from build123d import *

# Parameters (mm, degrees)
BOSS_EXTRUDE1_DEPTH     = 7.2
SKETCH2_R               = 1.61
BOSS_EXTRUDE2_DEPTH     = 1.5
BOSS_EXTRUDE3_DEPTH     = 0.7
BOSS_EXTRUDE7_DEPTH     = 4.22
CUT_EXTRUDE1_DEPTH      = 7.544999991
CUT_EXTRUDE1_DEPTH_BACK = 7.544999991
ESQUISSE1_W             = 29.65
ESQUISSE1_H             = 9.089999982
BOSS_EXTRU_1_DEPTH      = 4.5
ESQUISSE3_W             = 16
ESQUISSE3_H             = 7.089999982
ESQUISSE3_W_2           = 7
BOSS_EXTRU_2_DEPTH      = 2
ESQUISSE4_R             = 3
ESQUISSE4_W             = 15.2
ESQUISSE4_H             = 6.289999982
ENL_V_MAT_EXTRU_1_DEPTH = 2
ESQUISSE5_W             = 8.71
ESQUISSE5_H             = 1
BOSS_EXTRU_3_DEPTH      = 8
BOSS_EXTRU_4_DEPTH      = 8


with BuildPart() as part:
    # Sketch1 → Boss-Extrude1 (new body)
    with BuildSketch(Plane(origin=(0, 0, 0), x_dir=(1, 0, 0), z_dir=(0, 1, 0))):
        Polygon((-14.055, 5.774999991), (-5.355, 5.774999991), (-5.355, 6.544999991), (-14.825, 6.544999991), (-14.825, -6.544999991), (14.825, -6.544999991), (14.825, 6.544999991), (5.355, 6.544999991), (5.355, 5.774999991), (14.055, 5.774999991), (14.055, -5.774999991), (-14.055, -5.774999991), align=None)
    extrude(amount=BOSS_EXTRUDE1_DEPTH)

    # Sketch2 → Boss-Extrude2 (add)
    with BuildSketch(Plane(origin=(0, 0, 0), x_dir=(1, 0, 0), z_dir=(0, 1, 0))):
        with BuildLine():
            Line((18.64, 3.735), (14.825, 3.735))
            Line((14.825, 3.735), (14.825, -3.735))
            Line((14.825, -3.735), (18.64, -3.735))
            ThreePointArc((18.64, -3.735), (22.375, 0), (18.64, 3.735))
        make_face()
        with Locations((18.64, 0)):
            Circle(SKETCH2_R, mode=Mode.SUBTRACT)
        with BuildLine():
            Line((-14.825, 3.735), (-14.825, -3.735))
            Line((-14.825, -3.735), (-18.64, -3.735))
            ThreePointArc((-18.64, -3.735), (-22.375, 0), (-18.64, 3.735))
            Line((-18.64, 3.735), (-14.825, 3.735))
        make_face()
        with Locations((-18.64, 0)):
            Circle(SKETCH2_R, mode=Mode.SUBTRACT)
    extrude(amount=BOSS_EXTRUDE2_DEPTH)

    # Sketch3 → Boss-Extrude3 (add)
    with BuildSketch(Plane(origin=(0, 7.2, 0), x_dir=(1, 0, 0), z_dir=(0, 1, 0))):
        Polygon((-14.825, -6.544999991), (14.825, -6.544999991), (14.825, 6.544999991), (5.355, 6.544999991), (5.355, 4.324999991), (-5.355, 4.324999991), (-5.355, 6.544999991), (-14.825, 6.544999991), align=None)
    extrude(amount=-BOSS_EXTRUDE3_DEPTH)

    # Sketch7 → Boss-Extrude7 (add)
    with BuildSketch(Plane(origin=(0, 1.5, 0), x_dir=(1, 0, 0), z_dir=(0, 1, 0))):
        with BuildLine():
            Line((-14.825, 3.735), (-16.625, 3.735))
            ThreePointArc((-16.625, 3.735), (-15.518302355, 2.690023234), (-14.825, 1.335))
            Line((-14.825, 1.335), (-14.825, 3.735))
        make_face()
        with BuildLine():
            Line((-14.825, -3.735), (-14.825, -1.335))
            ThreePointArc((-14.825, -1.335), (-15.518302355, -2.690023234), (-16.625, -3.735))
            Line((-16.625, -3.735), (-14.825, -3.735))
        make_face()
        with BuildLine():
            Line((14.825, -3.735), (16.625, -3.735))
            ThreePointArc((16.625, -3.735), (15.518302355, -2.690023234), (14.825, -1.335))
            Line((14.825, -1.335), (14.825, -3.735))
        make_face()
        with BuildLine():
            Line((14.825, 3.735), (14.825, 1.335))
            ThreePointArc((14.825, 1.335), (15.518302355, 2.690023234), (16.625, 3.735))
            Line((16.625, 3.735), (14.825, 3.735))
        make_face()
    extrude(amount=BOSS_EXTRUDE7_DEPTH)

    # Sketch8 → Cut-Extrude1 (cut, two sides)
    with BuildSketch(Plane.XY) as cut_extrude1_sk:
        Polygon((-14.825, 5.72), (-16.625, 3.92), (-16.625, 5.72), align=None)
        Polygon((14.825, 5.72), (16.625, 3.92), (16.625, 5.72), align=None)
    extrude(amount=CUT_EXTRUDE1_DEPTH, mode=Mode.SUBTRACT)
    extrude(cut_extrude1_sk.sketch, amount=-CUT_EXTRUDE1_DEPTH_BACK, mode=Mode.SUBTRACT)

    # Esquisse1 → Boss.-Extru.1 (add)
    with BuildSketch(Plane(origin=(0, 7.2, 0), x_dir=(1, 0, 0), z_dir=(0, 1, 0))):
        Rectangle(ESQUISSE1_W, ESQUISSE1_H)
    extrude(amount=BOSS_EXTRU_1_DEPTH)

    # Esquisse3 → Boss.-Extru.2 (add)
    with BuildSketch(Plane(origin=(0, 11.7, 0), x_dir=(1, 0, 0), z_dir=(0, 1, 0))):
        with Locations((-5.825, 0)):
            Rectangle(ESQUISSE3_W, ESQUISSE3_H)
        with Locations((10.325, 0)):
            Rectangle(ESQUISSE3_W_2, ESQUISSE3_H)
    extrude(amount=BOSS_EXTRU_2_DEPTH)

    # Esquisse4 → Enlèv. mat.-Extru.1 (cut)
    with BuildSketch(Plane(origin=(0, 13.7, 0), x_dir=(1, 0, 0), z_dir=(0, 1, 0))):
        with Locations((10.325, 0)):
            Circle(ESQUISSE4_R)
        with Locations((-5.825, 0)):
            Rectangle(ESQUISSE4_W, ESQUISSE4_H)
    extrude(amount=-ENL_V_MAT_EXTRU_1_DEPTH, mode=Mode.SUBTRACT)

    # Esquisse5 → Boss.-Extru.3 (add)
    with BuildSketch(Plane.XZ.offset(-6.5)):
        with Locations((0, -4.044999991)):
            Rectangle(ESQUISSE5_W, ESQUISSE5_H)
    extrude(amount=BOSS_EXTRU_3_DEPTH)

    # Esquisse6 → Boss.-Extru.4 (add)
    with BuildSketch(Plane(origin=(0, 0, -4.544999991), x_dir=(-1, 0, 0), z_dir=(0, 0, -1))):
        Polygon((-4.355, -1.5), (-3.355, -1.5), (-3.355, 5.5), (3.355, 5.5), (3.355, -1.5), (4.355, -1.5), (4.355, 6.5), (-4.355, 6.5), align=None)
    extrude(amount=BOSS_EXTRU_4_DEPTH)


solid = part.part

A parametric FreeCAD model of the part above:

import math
import FreeCAD as App
import Part
import Sketcher
from FreeCAD import Vector

doc = App.newDocument("Part")
params = doc.addObject("Spreadsheet::Sheet", "Params")
for row, (alias, value) in enumerate([
    ("sketch1_width", "8.7 mm"),
    ("sketch1_width2", "9.47 mm"),
    ("sketch1_width3", "29.65 mm"),
    ("sketch1_height", "0.77 mm"),
    ("sketch1_height2", "13.09 mm"),
    ("pad1_length", "7.2 mm"),
    ("sketch2_diameter", "3.22 mm"),
    ("pad2_length", "1.5 mm"),
    ("sketch3_width", "29.65 mm"),
    ("sketch3_width2", "9.47 mm"),
    ("sketch3_height", "13.09 mm"),
    ("sketch3_height2", "2.22 mm"),
    ("pad3_length", "0.7 mm"),
    ("sketch4_width", "1.8 mm"),
    ("sketch4_height", "2.4 mm"),
    ("pad4_length", "4.22 mm"),
    ("sketch5_width", "1.8 mm"),
    ("sketch6_width", "29.65 mm"),
    ("sketch6_height", "9.09 mm"),
    ("pad5_length", "4.5 mm"),
    ("sketch7_width", "16 mm"),
    ("sketch7_width2", "7 mm"),
    ("sketch7_height", "7.09 mm"),
    ("pad6_length", "2 mm"),
    ("sketch8_diameter", "6 mm"),
    ("sketch8_width", "15.2 mm"),
    ("sketch8_height", "6.29 mm"),
    ("pocket2_length", "2 mm"),
    ("sketch9_height", "1 mm"),
    ("sketch9_width", "8.71 mm"),
    ("pad7_length", "8 mm"),
    ("sketch10_width", "1 mm"),
    ("sketch10_height", "7 mm"),
    ("sketch10_height2", "8 mm"),
    ("sketch10_width2", "6.71 mm"),
    ("pad8_length", "8 mm"),
], start=1):
    params.set(f"A{row}", alias)
    params.set(f"B{row}", "=" + value)
    params.setAlias(f"B{row}", alias)

body = doc.addObject("PartDesign::Body", "Body")

# Sketch on XZ plane
sketch1 = doc.addObject("Sketcher::SketchObject", "Sketch")
body.addObject(sketch1)
sketch1.AttachmentSupport = (doc.XZ_Plane, [""])
sketch1.MapMode = "FlatFace"
sketch1.addGeometry([
    Part.LineSegment(Vector(-14.1, -5.8, 0), Vector(-5.4, -5.8, 0)),  # 0
    Part.LineSegment(Vector(-5.4, -5.8, 0), Vector(-5.4, -6.5, 0)),  # 1
    Part.LineSegment(Vector(-5.4, -6.5, 0), Vector(-14.8, -6.5, 0)),  # 2
    Part.LineSegment(Vector(-14.8, -6.5, 0), Vector(-14.8, 6.5, 0)),  # 3
    Part.LineSegment(Vector(-14.8, 6.5, 0), Vector(14.8, 6.5, 0)),  # 4
    Part.LineSegment(Vector(14.8, 6.5, 0), Vector(14.8, -6.5, 0)),  # 5
    Part.LineSegment(Vector(14.8, -6.5, 0), Vector(5.4, -6.5, 0)),  # 6
    Part.LineSegment(Vector(5.4, -6.5, 0), Vector(5.4, -5.8, 0)),  # 7
    Part.LineSegment(Vector(5.4, -5.8, 0), Vector(14.1, -5.8, 0)),  # 8
    Part.LineSegment(Vector(14.1, -5.8, 0), Vector(14.1, 5.8, 0)),  # 9
    Part.LineSegment(Vector(14.1, 5.8, 0), Vector(-14.1, 5.8, 0)),  # 10
    Part.LineSegment(Vector(-14.1, 5.8, 0), Vector(-14.1, -5.8, 0)),  # 11
], False)
sketch1.addConstraint([
    Sketcher.Constraint("Coincident", 0, 2, 1, 1),
    Sketcher.Constraint("Coincident", 1, 2, 2, 1),
    Sketcher.Constraint("Coincident", 2, 2, 3, 1),
    Sketcher.Constraint("Coincident", 3, 2, 4, 1),
    Sketcher.Constraint("Coincident", 4, 2, 5, 1),
    Sketcher.Constraint("Coincident", 5, 2, 6, 1),
    Sketcher.Constraint("Coincident", 6, 2, 7, 1),
    Sketcher.Constraint("Coincident", 7, 2, 8, 1),
    Sketcher.Constraint("Coincident", 8, 2, 9, 1),
    Sketcher.Constraint("Coincident", 9, 2, 10, 1),
    Sketcher.Constraint("Coincident", 10, 2, 11, 1),
    Sketcher.Constraint("Coincident", 11, 2, 0, 1),
    Sketcher.Constraint("Horizontal", 0),
    Sketcher.Constraint("Vertical", 1),
    Sketcher.Constraint("Horizontal", 2),
    Sketcher.Constraint("Vertical", 3),
    Sketcher.Constraint("Horizontal", 4),
    Sketcher.Constraint("Vertical", 5),
    Sketcher.Constraint("Horizontal", 6),
    Sketcher.Constraint("Vertical", 7),
    Sketcher.Constraint("Horizontal", 8),
    Sketcher.Constraint("Vertical", 9),
    Sketcher.Constraint("Horizontal", 10),
    Sketcher.Constraint("Vertical", 11),
    Sketcher.Constraint("Symmetric", 2, 2, 4, 2, -1, 1),
    Sketcher.Constraint("Symmetric", 8, 2, 10, 2, -1, 1),
    Sketcher.Constraint("Symmetric", 1, 2, 6, 2, -2),
    Sketcher.Constraint("Horizontal", 0, 2, 7, 2),
    Sketcher.Constraint("DistanceX", 0, 1, 0, 2, 8.7),
    Sketcher.Constraint("DistanceX", 2, 2, 2, 1, 9.47),
    Sketcher.Constraint("DistanceX", 4, 1, 4, 2, 29.65),
    Sketcher.Constraint("DistanceY", 1, 2, 1, 1, 0.77),
    Sketcher.Constraint("DistanceY", 3, 1, 3, 2, 13.09),
])
sketch1.setExpression("Constraints[28]", "Params.sketch1_width")
sketch1.setExpression("Constraints[29]", "Params.sketch1_width2")
sketch1.setExpression("Constraints[30]", "Params.sketch1_width3")
sketch1.setExpression("Constraints[31]", "Params.sketch1_height")
sketch1.setExpression("Constraints[32]", "Params.sketch1_height2")
pad1 = doc.addObject("PartDesign::Pad", "Pad")
body.addObject(pad1)
pad1.Profile = sketch1
pad1.setExpression("Length", "Params.pad1_length")
pad1.Reversed = True

# Sketch on XZ plane
sketch2 = doc.addObject("Sketcher::SketchObject", "Sketch001")
body.addObject(sketch2)
sketch2.AttachmentSupport = (doc.XZ_Plane, [""])
sketch2.MapMode = "FlatFace"
sketch2.addGeometry([
    Part.LineSegment(Vector(18.6, -3.7, 0), Vector(14.8, -3.7, 0)),  # 0
    Part.LineSegment(Vector(14.8, -3.7, 0), Vector(14.8, 3.7, 0)),  # 1
    Part.LineSegment(Vector(14.8, 3.7, 0), Vector(18.6, 3.7, 0)),  # 2
    Part.ArcOfCircle(Part.Circle(Vector(18.6, 0, 0), Vector(0, 0, 1), 3.7), math.radians(-90), math.radians(90)),  # 3
    Part.Circle(Vector(18.6, 0, 0), Vector(0, 0, 1), 1.6),  # 4
    Part.LineSegment(Vector(-14.8, 3.7, 0), Vector(-14.8, -3.7, 0)),  # 5
    Part.LineSegment(Vector(-14.8, -3.7, 0), Vector(-18.6, -3.7, 0)),  # 6
    Part.ArcOfCircle(Part.Circle(Vector(-18.6, 0, 0), Vector(0, 0, 1), 3.7), math.radians(90), math.radians(270)),  # 7
    Part.LineSegment(Vector(-18.6, 3.7, 0), Vector(-14.8, 3.7, 0)),  # 8
    Part.Circle(Vector(-18.6, 0, 0), Vector(0, 0, 1), 1.6),  # 9
], False)
sketch2.addConstraint([
    Sketcher.Constraint("Coincident", 0, 2, 1, 1),
    Sketcher.Constraint("Coincident", 1, 2, 2, 1),
    Sketcher.Constraint("Tangent", 2, 2, 3, 2),
    Sketcher.Constraint("Tangent", 3, 1, 0, 1),
    Sketcher.Constraint("Coincident", 5, 2, 6, 1),
    Sketcher.Constraint("Tangent", 6, 2, 7, 2),
    Sketcher.Constraint("Tangent", 7, 1, 8, 1),
    Sketcher.Constraint("Coincident", 8, 2, 5, 1),
    Sketcher.Constraint("Horizontal", 0),
    Sketcher.Constraint("Vertical", 1),
    Sketcher.Constraint("Horizontal", 2),
    Sketcher.Constraint("Vertical", 5),
    Sketcher.Constraint("Horizontal", 6),
    Sketcher.Constraint("Horizontal", 8),
    Sketcher.Constraint("Coincident", 4, 3, 3, 3),
    Sketcher.Constraint("Coincident", 9, 3, 7, 3),
    Sketcher.Constraint("Equal", 3, 7),
    Sketcher.Constraint("Equal", 4, 9),
    Sketcher.Constraint("Symmetric", 3, 3, 7, 3, -1, 1),
    Sketcher.Constraint("Symmetric", 0, 2, 5, 2, -2),
    Sketcher.Constraint("Diameter", 4, 3.22),
    Sketcher.Constraint("Radius", 3, 3.735),
    Sketcher.Constraint("DistanceX", 0, 2, 0, 1, 3.815),
    Sketcher.Constraint("DistanceX", -1, 1, 3, 3, 18.64),
])
sketch2.setExpression("Constraints[20]", "Params.sketch2_diameter")
pad2 = doc.addObject("PartDesign::Pad", "Pad001")
body.addObject(pad2)
pad2.Profile = sketch2
pad2.setExpression("Length", "Params.pad2_length")
pad2.Reversed = True

# Sketch on XZ plane
sketch3 = doc.addObject("Sketcher::SketchObject", "Sketch002")
body.addObject(sketch3)
sketch3.AttachmentSupport = (doc.XZ_Plane, [""])
sketch3.MapMode = "FlatFace"
sketch3.AttachmentOffset = App.Placement(Vector(0, 0, -7.2), App.Rotation())
sketch3.addGeometry([
    Part.LineSegment(Vector(-14.8, 6.5, 0), Vector(14.8, 6.5, 0)),  # 0
    Part.LineSegment(Vector(14.8, 6.5, 0), Vector(14.8, -6.5, 0)),  # 1
    Part.LineSegment(Vector(14.8, -6.5, 0), Vector(5.4, -6.5, 0)),  # 2
    Part.LineSegment(Vector(5.4, -6.5, 0), Vector(5.4, -4.3, 0)),  # 3
    Part.LineSegment(Vector(5.4, -4.3, 0), Vector(-5.4, -4.3, 0)),  # 4
    Part.LineSegment(Vector(-5.4, -4.3, 0), Vector(-5.4, -6.5, 0)),  # 5
    Part.LineSegment(Vector(-5.4, -6.5, 0), Vector(-14.8, -6.5, 0)),  # 6
    Part.LineSegment(Vector(-14.8, -6.5, 0), Vector(-14.8, 6.5, 0)),  # 7
], False)
sketch3.addConstraint([
    Sketcher.Constraint("Coincident", 0, 2, 1, 1),
    Sketcher.Constraint("Coincident", 1, 2, 2, 1),
    Sketcher.Constraint("Coincident", 2, 2, 3, 1),
    Sketcher.Constraint("Coincident", 3, 2, 4, 1),
    Sketcher.Constraint("Coincident", 4, 2, 5, 1),
    Sketcher.Constraint("Coincident", 5, 2, 6, 1),
    Sketcher.Constraint("Coincident", 6, 2, 7, 1),
    Sketcher.Constraint("Coincident", 7, 2, 0, 1),
    Sketcher.Constraint("Horizontal", 0),
    Sketcher.Constraint("Vertical", 1),
    Sketcher.Constraint("Horizontal", 2),
    Sketcher.Constraint("Vertical", 3),
    Sketcher.Constraint("Horizontal", 4),
    Sketcher.Constraint("Vertical", 5),
    Sketcher.Constraint("Horizontal", 6),
    Sketcher.Constraint("Vertical", 7),
    Sketcher.Constraint("Symmetric", 0, 2, 6, 2, -1, 1),
    Sketcher.Constraint("Symmetric", 2, 2, 5, 2, -2),
    Sketcher.Constraint("DistanceX", 0, 1, 0, 2, 29.65),
    Sketcher.Constraint("DistanceX", 2, 2, 2, 1, 9.47),
    Sketcher.Constraint("DistanceY", 1, 2, 1, 1, 13.09),
    Sketcher.Constraint("DistanceY", 3, 1, 3, 2, 2.22),
])
sketch3.setExpression("Constraints[18]", "Params.sketch3_width")
sketch3.setExpression("Constraints[19]", "Params.sketch3_width2")
sketch3.setExpression("Constraints[20]", "Params.sketch3_height")
sketch3.setExpression("Constraints[21]", "Params.sketch3_height2")
pad3 = doc.addObject("PartDesign::Pad", "Pad002")
body.addObject(pad3)
pad3.Profile = sketch3
pad3.setExpression("Length", "Params.pad3_length")

# Sketch on XZ plane
sketch4 = doc.addObject("Sketcher::SketchObject", "Sketch003")
body.addObject(sketch4)
sketch4.AttachmentSupport = (doc.XZ_Plane, [""])
sketch4.MapMode = "FlatFace"
sketch4.AttachmentOffset = App.Placement(Vector(0, 0, -1.5), App.Rotation())
sketch4.addGeometry([
    Part.LineSegment(Vector(-14.8, -3.7, 0), Vector(-16.6, -3.7, 0)),  # 0
    Part.ArcOfCircle(Part.Circle(Vector(-19.1, 0, 0), Vector(0, 0, 1), 4.5), math.radians(-56), math.radians(-17)),  # 1
    Part.LineSegment(Vector(-14.8, -1.3, 0), Vector(-14.8, -3.7, 0)),  # 2
    Part.LineSegment(Vector(-14.8, 3.7, 0), Vector(-14.8, 1.3, 0)),  # 3
    Part.ArcOfCircle(Part.Circle(Vector(-19.1, 0, 0), Vector(0, 0, 1), 4.5), math.radians(17), math.radians(56)),  # 4
    Part.LineSegment(Vector(-16.6, 3.7, 0), Vector(-14.8, 3.7, 0)),  # 5
    Part.LineSegment(Vector(14.8, 3.7, 0), Vector(16.6, 3.7, 0)),  # 6
    Part.ArcOfCircle(Part.Circle(Vector(19.1, 0, 0), Vector(0, 0, 1), 4.5), math.radians(124), math.radians(163)),  # 7
    Part.LineSegment(Vector(14.8, 1.3, 0), Vector(14.8, 3.7, 0)),  # 8
    Part.LineSegment(Vector(14.8, -3.7, 0), Vector(14.8, -1.3, 0)),  # 9
    Part.ArcOfCircle(Part.Circle(Vector(19.1, 0, 0), Vector(0, 0, 1), 4.5), math.radians(-163), math.radians(-124)),  # 10
    Part.LineSegment(Vector(16.6, -3.7, 0), Vector(14.8, -3.7, 0)),  # 11
], False)
sketch4.addConstraint([
    Sketcher.Constraint("Coincident", 0, 2, 1, 1),
    Sketcher.Constraint("Coincident", 1, 2, 2, 1),
    Sketcher.Constraint("Coincident", 2, 2, 0, 1),
    Sketcher.Constraint("Coincident", 3, 2, 4, 1),
    Sketcher.Constraint("Coincident", 4, 2, 5, 1),
    Sketcher.Constraint("Coincident", 5, 2, 3, 1),
    Sketcher.Constraint("Coincident", 6, 2, 7, 1),
    Sketcher.Constraint("Coincident", 7, 2, 8, 1),
    Sketcher.Constraint("Coincident", 8, 2, 6, 1),
    Sketcher.Constraint("Coincident", 9, 2, 10, 1),
    Sketcher.Constraint("Coincident", 10, 2, 11, 1),
    Sketcher.Constraint("Coincident", 11, 2, 9, 1),
    Sketcher.Constraint("Horizontal", 0),
    Sketcher.Constraint("Vertical", 2),
    Sketcher.Constraint("Vertical", 3),
    Sketcher.Constraint("Horizontal", 5),
    Sketcher.Constraint("Horizontal", 6),
    Sketcher.Constraint("Vertical", 8),
    Sketcher.Constraint("Vertical", 9),
    Sketcher.Constraint("Horizontal", 11),
    Sketcher.Constraint("Coincident", 4, 3, 1, 3),
    Sketcher.Constraint("Coincident", 10, 3, 7, 3),
    Sketcher.Constraint("Equal", 1, 4),
    Sketcher.Constraint("Equal", 4, 7),
    Sketcher.Constraint("Equal", 7, 10),
    Sketcher.Constraint("Symmetric", 1, 3, 7, 3, -1, 1),
    Sketcher.Constraint("Symmetric", 2, 2, 8, 2, -1, 1),
    Sketcher.Constraint("Symmetric", 5, 2, 11, 2, -1, 1),
    Sketcher.Constraint("Symmetric", 4, 2, 6, 2, -2),
    Sketcher.Constraint("Horizontal", 3, 2, 7, 2),
    Sketcher.Constraint("DistanceX", 0, 2, 0, 1, 1.8),
    Sketcher.Constraint("DistanceY", 2, 2, 2, 1, 2.4),
    Sketcher.Constraint("DistanceX", 1, 3, 7, 3, 38.21),
    Sketcher.Constraint("DistanceX", 4, 3, 0, 2, 2.48),
])
sketch4.setExpression("Constraints[30]", "Params.sketch4_width")
sketch4.setExpression("Constraints[31]", "Params.sketch4_height")
pad4 = doc.addObject("PartDesign::Pad", "Pad003")
body.addObject(pad4)
pad4.Profile = sketch4
pad4.setExpression("Length", "Params.pad4_length")
pad4.Reversed = True

# Sketch on XY plane
sketch5 = doc.addObject("Sketcher::SketchObject", "Sketch004")
body.addObject(sketch5)
sketch5.AttachmentSupport = (doc.XY_Plane, [""])
sketch5.MapMode = "FlatFace"
sketch5.addGeometry([
    Part.LineSegment(Vector(-16.6, 3.9, 0), Vector(-14.8, 5.7, 0)),  # 0
    Part.LineSegment(Vector(-14.8, 5.7, 0), Vector(-16.6, 5.7, 0)),  # 1
    Part.LineSegment(Vector(-16.6, 5.7, 0), Vector(-16.6, 3.9, 0)),  # 2
    Part.LineSegment(Vector(14.8, 5.7, 0), Vector(16.6, 3.9, 0)),  # 3
    Part.LineSegment(Vector(16.6, 3.9, 0), Vector(16.6, 5.7, 0)),  # 4
    Part.LineSegment(Vector(16.6, 5.7, 0), Vector(14.8, 5.7, 0)),  # 5
], False)
sketch5.addConstraint([
    Sketcher.Constraint("Coincident", 0, 2, 1, 1),
    Sketcher.Constraint("Coincident", 1, 2, 2, 1),
    Sketcher.Constraint("Coincident", 2, 2, 0, 1),
    Sketcher.Constraint("Coincident", 3, 2, 4, 1),
    Sketcher.Constraint("Coincident", 4, 2, 5, 1),
    Sketcher.Constraint("Coincident", 5, 2, 3, 1),
    Sketcher.Constraint("Horizontal", 1),
    Sketcher.Constraint("Vertical", 2),
    Sketcher.Constraint("Vertical", 4),
    Sketcher.Constraint("Horizontal", 5),
    Sketcher.Constraint("Symmetric", 2, 2, 3, 2, -2),
    Sketcher.Constraint("Symmetric", 0, 2, 5, 2, -2),
    Sketcher.Constraint("Perpendicular", 0, 3),
    Sketcher.Constraint("DistanceX", 1, 2, 1, 1, 1.8),
    Sketcher.Constraint("DistanceY", -1, 1, 0, 2, 5.72),
    Sketcher.Constraint("DistanceX", 0, 2, 3, 2, 31.45),
])
sketch5.setExpression("Constraints[13]", "Params.sketch5_width")
pocket1 = doc.addObject("PartDesign::Pocket", "Pocket")
body.addObject(pocket1)
pocket1.Profile = sketch5
pocket1.Type = "ThroughAll"
pocket1.Midplane = True

# Sketch on XZ plane
sketch6 = doc.addObject("Sketcher::SketchObject", "Sketch005")
body.addObject(sketch6)
sketch6.AttachmentSupport = (doc.XZ_Plane, [""])
sketch6.MapMode = "FlatFace"
sketch6.AttachmentOffset = App.Placement(Vector(0, 0, -7.2), App.Rotation())
sketch6.addGeometry([
    Part.LineSegment(Vector(-15, -5, 0), Vector(-15, 5, 0)),
    Part.LineSegment(Vector(-15, 5, 0), Vector(15, 5, 0)),
    Part.LineSegment(Vector(15, 5, 0), Vector(15, -5, 0)),
    Part.LineSegment(Vector(15, -5, 0), Vector(-15, -5, 0)),
], False)
sketch6.addConstraint([
    Sketcher.Constraint("Coincident", 0, 2, 1, 1),
    Sketcher.Constraint("Coincident", 1, 2, 2, 1),
    Sketcher.Constraint("Coincident", 2, 2, 3, 1),
    Sketcher.Constraint("Coincident", 3, 2, 0, 1),
    Sketcher.Constraint("Vertical", 0),
    Sketcher.Constraint("Horizontal", 1),
    Sketcher.Constraint("Vertical", 2),
    Sketcher.Constraint("Horizontal", 3),
    Sketcher.Constraint("Symmetric", 0, 2, 2, 2, -1, 1),
    Sketcher.Constraint("DistanceX", 1, 1, 1, 2, 29.65),
    Sketcher.Constraint("DistanceY", 0, 1, 0, 2, 9.09),
])
sketch6.setExpression("Constraints[9]", "Params.sketch6_width")
sketch6.setExpression("Constraints[10]", "Params.sketch6_height")
pad5 = doc.addObject("PartDesign::Pad", "Pad004")
body.addObject(pad5)
pad5.Profile = sketch6
pad5.setExpression("Length", "Params.pad5_length")
pad5.Reversed = True

# Sketch on XZ plane
sketch7 = doc.addObject("Sketcher::SketchObject", "Sketch006")
body.addObject(sketch7)
sketch7.AttachmentSupport = (doc.XZ_Plane, [""])
sketch7.MapMode = "FlatFace"
sketch7.AttachmentOffset = App.Placement(Vector(0, 0, -11.7), App.Rotation())
sketch7.addGeometry([
    Part.LineSegment(Vector(-14, -4, 0), Vector(-14, 4, 0)),  # 0
    Part.LineSegment(Vector(-14, 4, 0), Vector(2, 4, 0)),  # 1
    Part.LineSegment(Vector(2, 4, 0), Vector(2, -4, 0)),  # 2
    Part.LineSegment(Vector(2, -4, 0), Vector(-14, -4, 0)),  # 3
    Part.LineSegment(Vector(7, -4, 0), Vector(7, 4, 0)),  # 4
    Part.LineSegment(Vector(7, 4, 0), Vector(14, 4, 0)),  # 5
    Part.LineSegment(Vector(14, 4, 0), Vector(14, -4, 0)),  # 6
    Part.LineSegment(Vector(14, -4, 0), Vector(7, -4, 0)),  # 7
], False)
sketch7.addConstraint([
    Sketcher.Constraint("Coincident", 0, 2, 1, 1),
    Sketcher.Constraint("Coincident", 1, 2, 2, 1),
    Sketcher.Constraint("Coincident", 2, 2, 3, 1),
    Sketcher.Constraint("Coincident", 3, 2, 0, 1),
    Sketcher.Constraint("Coincident", 4, 2, 5, 1),
    Sketcher.Constraint("Coincident", 5, 2, 6, 1),
    Sketcher.Constraint("Coincident", 6, 2, 7, 1),
    Sketcher.Constraint("Coincident", 7, 2, 4, 1),
    Sketcher.Constraint("Vertical", 0),
    Sketcher.Constraint("Horizontal", 1),
    Sketcher.Constraint("Vertical", 2),
    Sketcher.Constraint("Horizontal", 3),
    Sketcher.Constraint("Vertical", 4),
    Sketcher.Constraint("Horizontal", 5),
    Sketcher.Constraint("Vertical", 6),
    Sketcher.Constraint("Horizontal", 7),
    Sketcher.Constraint("Symmetric", 3, 2, 5, 2, -1, 1),
    Sketcher.Constraint("Horizontal", 1, 2, 4, 2),
    Sketcher.Constraint("Horizontal", 3, 2, 6, 2),
    Sketcher.Constraint("DistanceX", 1, 1, 1, 2, 16.0),
    Sketcher.Constraint("DistanceX", 5, 1, 5, 2, 7.0),
    Sketcher.Constraint("DistanceY", 0, 1, 0, 2, 7.09),
    Sketcher.Constraint("DistanceX", 1, 2, 4, 2, 4.65),
])
sketch7.setExpression("Constraints[19]", "Params.sketch7_width")
sketch7.setExpression("Constraints[20]", "Params.sketch7_width2")
sketch7.setExpression("Constraints[21]", "Params.sketch7_height")
pad6 = doc.addObject("PartDesign::Pad", "Pad005")
body.addObject(pad6)
pad6.Profile = sketch7
pad6.setExpression("Length", "Params.pad6_length")
pad6.Reversed = True

# Sketch on XZ plane
sketch8 = doc.addObject("Sketcher::SketchObject", "Sketch007")
body.addObject(sketch8)
sketch8.AttachmentSupport = (doc.XZ_Plane, [""])
sketch8.MapMode = "FlatFace"
sketch8.AttachmentOffset = App.Placement(Vector(0, 0, -13.7), App.Rotation())
sketch8.addGeometry([
    Part.Circle(Vector(10.3, 0, 0), Vector(0, 0, 1), 3),  # 0
    Part.LineSegment(Vector(-13.4, -3.1, 0), Vector(-13.4, 3.1, 0)),  # 1
    Part.LineSegment(Vector(-13.4, 3.1, 0), Vector(1.8, 3.1, 0)),  # 2
    Part.LineSegment(Vector(1.8, 3.1, 0), Vector(1.8, -3.1, 0)),  # 3
    Part.LineSegment(Vector(1.8, -3.1, 0), Vector(-13.4, -3.1, 0)),  # 4
], False)
sketch8.addConstraint([
    Sketcher.Constraint("Coincident", 1, 2, 2, 1),
    Sketcher.Constraint("Coincident", 2, 2, 3, 1),
    Sketcher.Constraint("Coincident", 3, 2, 4, 1),
    Sketcher.Constraint("Coincident", 4, 2, 1, 1),
    Sketcher.Constraint("Vertical", 1),
    Sketcher.Constraint("Horizontal", 2),
    Sketcher.Constraint("Vertical", 3),
    Sketcher.Constraint("Horizontal", 4),
    Sketcher.Constraint("PointOnObject", 0, 3, -1),
    Sketcher.Constraint("Diameter", 0, 6.0),
    Sketcher.Constraint("DistanceX", 2, 1, 2, 2, 15.2),
    Sketcher.Constraint("DistanceY", 1, 1, 1, 2, 6.29),
    Sketcher.Constraint("DistanceX", 1, 2, 0, 3, 23.75),
    Sketcher.Constraint("DistanceX", -1, 1, 0, 3, 10.325),
    Sketcher.Constraint("DistanceY", -1, 1, 1, 2, 3.145),
])
sketch8.setExpression("Constraints[9]", "Params.sketch8_diameter")
sketch8.setExpression("Constraints[10]", "Params.sketch8_width")
sketch8.setExpression("Constraints[11]", "Params.sketch8_height")
pocket2 = doc.addObject("PartDesign::Pocket", "Pocket001")
body.addObject(pocket2)
pocket2.Profile = sketch8
pocket2.setExpression("Length", "Params.pocket2_length")
pocket2.Reversed = True

# Sketch on XZ plane
sketch9 = doc.addObject("Sketcher::SketchObject", "Sketch008")
body.addObject(sketch9)
sketch9.AttachmentSupport = (doc.XZ_Plane, [""])
sketch9.MapMode = "FlatFace"
sketch9.AttachmentOffset = App.Placement(Vector(0, 0, -6.5), App.Rotation())
sketch9.addGeometry([
    Part.LineSegment(Vector(-4.4, -3.5, 0), Vector(-4.4, -4.5, 0)),
    Part.LineSegment(Vector(-4.4, -4.5, 0), Vector(4.4, -4.5, 0)),
    Part.LineSegment(Vector(4.4, -4.5, 0), Vector(4.4, -3.5, 0)),
    Part.LineSegment(Vector(4.4, -3.5, 0), Vector(-4.4, -3.5, 0)),
], False)
sketch9.addConstraint([
    Sketcher.Constraint("Coincident", 0, 2, 1, 1),
    Sketcher.Constraint("Coincident", 1, 2, 2, 1),
    Sketcher.Constraint("Coincident", 2, 2, 3, 1),
    Sketcher.Constraint("Coincident", 3, 2, 0, 1),
    Sketcher.Constraint("Vertical", 0),
    Sketcher.Constraint("Horizontal", 1),
    Sketcher.Constraint("Vertical", 2),
    Sketcher.Constraint("Horizontal", 3),
    Sketcher.Constraint("DistanceY", 0, 2, 0, 1, 1.0),
    Sketcher.Constraint("DistanceX", 1, 1, 1, 2, 8.71),
    Sketcher.Constraint("DistanceX", 0, 2, -1, 1, 4.355),
    Sketcher.Constraint("DistanceY", 0, 2, -1, 1, 4.545),
])
sketch9.setExpression("Constraints[8]", "Params.sketch9_height")
sketch9.setExpression("Constraints[9]", "Params.sketch9_width")
pad7 = doc.addObject("PartDesign::Pad", "Pad006")
body.addObject(pad7)
pad7.Profile = sketch9
pad7.setExpression("Length", "Params.pad7_length")

# Sketch on XY plane
sketch10 = doc.addObject("Sketcher::SketchObject", "Sketch009")
body.addObject(sketch10)
sketch10.AttachmentSupport = (doc.XY_Plane, [""])
sketch10.MapMode = "FlatFace"
sketch10.AttachmentOffset = App.Placement(Vector(0, 0, -4.545), App.Rotation())
sketch10.addGeometry([
    Part.LineSegment(Vector(4.4, -1.5, 0), Vector(3.4, -1.5, 0)),  # 0
    Part.LineSegment(Vector(3.4, -1.5, 0), Vector(3.4, 5.5, 0)),  # 1
    Part.LineSegment(Vector(3.4, 5.5, 0), Vector(-3.4, 5.5, 0)),  # 2
    Part.LineSegment(Vector(-3.4, 5.5, 0), Vector(-3.4, -1.5, 0)),  # 3
    Part.LineSegment(Vector(-3.4, -1.5, 0), Vector(-4.4, -1.5, 0)),  # 4
    Part.LineSegment(Vector(-4.4, -1.5, 0), Vector(-4.4, 6.5, 0)),  # 5
    Part.LineSegment(Vector(-4.4, 6.5, 0), Vector(4.4, 6.5, 0)),  # 6
    Part.LineSegment(Vector(4.4, 6.5, 0), Vector(4.4, -1.5, 0)),  # 7
], False)
sketch10.addConstraint([
    Sketcher.Constraint("Coincident", 0, 2, 1, 1),
    Sketcher.Constraint("Coincident", 1, 2, 2, 1),
    Sketcher.Constraint("Coincident", 2, 2, 3, 1),
    Sketcher.Constraint("Coincident", 3, 2, 4, 1),
    Sketcher.Constraint("Coincident", 4, 2, 5, 1),
    Sketcher.Constraint("Coincident", 5, 2, 6, 1),
    Sketcher.Constraint("Coincident", 6, 2, 7, 1),
    Sketcher.Constraint("Coincident", 7, 2, 0, 1),
    Sketcher.Constraint("Horizontal", 0),
    Sketcher.Constraint("Vertical", 1),
    Sketcher.Constraint("Horizontal", 2),
    Sketcher.Constraint("Vertical", 3),
    Sketcher.Constraint("Horizontal", 4),
    Sketcher.Constraint("Vertical", 5),
    Sketcher.Constraint("Horizontal", 6),
    Sketcher.Constraint("Vertical", 7),
    Sketcher.Constraint("Symmetric", 0, 2, 3, 2, -2),
    Sketcher.Constraint("Equal", 0, 4),
    Sketcher.Constraint("DistanceX", 0, 2, 0, 1, 1.0),
    Sketcher.Constraint("DistanceY", 1, 1, 1, 2, 7.0),
    Sketcher.Constraint("DistanceY", 5, 1, 5, 2, 8.0),
    Sketcher.Constraint("DistanceX", 2, 2, 2, 1, 6.71),
    Sketcher.Constraint("DistanceY", 0, 2, -1, 1, 1.5),
])
sketch10.setExpression("Constraints[18]", "Params.sketch10_width")
sketch10.setExpression("Constraints[19]", "Params.sketch10_height")
sketch10.setExpression("Constraints[20]", "Params.sketch10_height2")
sketch10.setExpression("Constraints[21]", "Params.sketch10_width2")
pad8 = doc.addObject("PartDesign::Pad", "Pad007")
body.addObject(pad8)
pad8.Profile = sketch10
pad8.setExpression("Length", "Params.pad8_length")
pad8.Reversed = True

doc.recompute()
